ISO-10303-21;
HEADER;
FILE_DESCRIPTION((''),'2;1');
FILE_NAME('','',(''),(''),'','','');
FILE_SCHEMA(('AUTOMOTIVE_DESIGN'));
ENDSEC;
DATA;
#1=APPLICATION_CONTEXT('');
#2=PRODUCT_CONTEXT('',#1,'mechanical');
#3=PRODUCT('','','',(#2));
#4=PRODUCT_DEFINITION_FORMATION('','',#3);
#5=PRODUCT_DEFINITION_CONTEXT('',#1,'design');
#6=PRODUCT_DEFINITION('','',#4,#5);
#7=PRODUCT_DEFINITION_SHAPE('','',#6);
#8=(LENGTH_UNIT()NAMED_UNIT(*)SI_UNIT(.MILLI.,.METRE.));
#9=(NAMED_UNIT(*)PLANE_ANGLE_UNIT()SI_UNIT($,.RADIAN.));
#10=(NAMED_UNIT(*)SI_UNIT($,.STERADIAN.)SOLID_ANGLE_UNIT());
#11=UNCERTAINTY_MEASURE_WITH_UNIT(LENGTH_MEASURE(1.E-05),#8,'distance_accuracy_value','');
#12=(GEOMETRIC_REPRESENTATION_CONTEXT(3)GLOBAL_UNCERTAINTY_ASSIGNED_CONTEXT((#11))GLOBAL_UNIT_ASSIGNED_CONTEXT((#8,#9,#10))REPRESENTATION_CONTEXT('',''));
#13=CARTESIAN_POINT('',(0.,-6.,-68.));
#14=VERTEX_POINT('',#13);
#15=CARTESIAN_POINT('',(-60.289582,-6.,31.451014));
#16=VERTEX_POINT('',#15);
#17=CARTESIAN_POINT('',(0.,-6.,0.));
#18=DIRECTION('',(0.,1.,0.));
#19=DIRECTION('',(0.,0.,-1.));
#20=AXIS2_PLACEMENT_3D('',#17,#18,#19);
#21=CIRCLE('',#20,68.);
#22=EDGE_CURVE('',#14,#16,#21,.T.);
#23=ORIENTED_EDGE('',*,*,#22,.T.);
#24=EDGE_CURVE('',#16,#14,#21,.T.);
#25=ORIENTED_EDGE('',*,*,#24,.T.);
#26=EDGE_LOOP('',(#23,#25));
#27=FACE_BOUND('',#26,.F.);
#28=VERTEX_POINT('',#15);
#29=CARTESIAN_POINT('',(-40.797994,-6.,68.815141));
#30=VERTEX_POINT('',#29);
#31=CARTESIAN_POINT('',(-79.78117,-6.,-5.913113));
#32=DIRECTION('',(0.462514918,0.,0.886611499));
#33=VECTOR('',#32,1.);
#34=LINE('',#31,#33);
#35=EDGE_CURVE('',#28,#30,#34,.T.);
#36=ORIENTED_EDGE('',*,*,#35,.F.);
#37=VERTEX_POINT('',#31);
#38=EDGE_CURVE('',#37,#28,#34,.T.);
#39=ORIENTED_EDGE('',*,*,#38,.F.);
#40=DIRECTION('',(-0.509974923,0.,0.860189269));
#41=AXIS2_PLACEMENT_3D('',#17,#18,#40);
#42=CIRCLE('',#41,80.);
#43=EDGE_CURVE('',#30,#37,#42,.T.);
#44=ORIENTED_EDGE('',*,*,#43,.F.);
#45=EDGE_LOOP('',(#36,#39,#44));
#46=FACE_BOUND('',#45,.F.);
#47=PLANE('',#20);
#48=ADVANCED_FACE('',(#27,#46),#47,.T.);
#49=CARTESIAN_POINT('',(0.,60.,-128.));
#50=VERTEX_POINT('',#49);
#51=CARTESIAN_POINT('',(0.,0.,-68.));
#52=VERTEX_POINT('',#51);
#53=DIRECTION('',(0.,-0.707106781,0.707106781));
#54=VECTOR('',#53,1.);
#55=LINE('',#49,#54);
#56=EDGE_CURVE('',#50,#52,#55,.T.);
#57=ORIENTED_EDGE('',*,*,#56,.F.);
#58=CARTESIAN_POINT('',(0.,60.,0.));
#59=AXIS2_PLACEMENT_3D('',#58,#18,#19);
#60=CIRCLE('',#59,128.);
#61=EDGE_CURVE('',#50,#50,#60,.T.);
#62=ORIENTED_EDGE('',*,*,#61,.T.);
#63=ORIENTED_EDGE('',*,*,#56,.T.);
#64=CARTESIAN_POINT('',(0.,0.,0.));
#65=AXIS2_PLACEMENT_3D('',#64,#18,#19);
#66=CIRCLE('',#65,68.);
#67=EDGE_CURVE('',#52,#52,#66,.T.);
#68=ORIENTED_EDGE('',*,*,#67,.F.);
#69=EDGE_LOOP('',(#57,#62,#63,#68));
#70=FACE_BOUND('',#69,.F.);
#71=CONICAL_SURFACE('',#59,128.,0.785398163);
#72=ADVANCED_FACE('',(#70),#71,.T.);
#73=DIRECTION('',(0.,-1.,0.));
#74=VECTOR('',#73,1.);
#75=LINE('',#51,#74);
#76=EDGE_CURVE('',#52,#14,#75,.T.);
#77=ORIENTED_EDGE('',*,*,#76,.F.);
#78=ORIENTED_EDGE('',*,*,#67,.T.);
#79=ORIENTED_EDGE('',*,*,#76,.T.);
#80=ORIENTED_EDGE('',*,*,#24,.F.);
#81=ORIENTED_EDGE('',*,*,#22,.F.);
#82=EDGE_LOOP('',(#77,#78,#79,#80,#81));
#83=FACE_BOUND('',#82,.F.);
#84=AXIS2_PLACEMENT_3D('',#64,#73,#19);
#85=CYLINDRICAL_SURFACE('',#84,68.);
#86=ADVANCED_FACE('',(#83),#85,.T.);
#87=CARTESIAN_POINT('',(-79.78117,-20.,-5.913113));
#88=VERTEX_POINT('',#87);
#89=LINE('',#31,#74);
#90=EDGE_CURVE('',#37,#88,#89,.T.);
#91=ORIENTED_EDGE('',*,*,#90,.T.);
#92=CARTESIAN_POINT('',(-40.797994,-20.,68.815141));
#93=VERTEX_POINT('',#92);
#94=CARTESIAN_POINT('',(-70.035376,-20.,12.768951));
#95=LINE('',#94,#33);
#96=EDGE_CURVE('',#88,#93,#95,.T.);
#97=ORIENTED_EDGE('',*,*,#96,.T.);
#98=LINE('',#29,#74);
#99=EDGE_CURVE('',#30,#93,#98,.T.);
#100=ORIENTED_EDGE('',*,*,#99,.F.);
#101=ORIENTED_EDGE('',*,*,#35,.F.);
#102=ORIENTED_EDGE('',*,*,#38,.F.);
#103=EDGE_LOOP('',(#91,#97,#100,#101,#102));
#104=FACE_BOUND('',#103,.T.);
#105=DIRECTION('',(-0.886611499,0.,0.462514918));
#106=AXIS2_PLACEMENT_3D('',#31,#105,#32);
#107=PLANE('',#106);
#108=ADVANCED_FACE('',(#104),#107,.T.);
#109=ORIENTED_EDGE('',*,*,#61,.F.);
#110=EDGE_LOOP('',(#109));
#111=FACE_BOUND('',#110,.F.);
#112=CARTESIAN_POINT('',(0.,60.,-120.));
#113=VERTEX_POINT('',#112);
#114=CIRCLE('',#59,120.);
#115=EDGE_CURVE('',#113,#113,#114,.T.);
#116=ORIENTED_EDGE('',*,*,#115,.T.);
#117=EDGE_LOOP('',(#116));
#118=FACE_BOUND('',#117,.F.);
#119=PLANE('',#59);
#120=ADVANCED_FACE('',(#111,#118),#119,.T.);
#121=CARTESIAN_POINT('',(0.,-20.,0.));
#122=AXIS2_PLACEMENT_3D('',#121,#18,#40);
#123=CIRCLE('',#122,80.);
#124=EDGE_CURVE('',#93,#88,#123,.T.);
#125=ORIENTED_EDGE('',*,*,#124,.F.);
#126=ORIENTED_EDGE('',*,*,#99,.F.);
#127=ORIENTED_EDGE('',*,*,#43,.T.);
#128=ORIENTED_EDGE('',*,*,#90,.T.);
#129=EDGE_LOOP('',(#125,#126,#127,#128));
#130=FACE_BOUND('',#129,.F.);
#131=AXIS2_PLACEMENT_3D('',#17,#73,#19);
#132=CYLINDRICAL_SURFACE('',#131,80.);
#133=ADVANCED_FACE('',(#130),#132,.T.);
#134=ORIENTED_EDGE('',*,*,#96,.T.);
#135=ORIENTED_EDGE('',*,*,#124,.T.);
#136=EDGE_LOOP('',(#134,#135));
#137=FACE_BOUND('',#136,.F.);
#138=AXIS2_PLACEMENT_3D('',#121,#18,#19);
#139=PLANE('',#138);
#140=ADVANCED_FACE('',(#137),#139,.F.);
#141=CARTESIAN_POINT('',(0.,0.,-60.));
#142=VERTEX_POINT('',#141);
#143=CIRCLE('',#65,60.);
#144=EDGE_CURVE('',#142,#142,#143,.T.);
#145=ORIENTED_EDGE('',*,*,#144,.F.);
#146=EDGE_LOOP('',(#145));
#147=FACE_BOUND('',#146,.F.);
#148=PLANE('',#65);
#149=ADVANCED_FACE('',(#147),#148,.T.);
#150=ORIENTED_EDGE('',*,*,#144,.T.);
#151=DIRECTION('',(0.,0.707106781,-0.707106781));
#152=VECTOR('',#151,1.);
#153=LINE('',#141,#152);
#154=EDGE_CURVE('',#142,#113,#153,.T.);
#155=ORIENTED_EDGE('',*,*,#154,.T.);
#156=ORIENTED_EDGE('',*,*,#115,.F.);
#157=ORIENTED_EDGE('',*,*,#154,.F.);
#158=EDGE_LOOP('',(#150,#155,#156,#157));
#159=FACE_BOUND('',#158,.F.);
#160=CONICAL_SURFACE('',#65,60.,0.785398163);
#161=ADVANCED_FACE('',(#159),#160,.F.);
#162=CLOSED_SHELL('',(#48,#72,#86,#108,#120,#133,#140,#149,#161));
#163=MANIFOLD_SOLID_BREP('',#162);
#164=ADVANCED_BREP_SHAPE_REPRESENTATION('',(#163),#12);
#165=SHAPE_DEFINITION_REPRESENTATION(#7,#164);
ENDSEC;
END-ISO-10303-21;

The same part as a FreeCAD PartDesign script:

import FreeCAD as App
import Part
import Sketcher
Q = App.Units.Quantity

doc = App.newDocument("Part")
body = doc.addObject("PartDesign::Body", "Body")

sketch1 = body.newObject("Sketcher::SketchObject", "Sketch")
sketch1.AttachmentSupport = (doc.getObject("XY_Plane"), [""])
sketch1.MapMode = "FlatFace"
sketch1.addGeometry([
    Part.LineSegment(App.Vector(0, 0, 0), App.Vector(-60, 0, 0)),
    Part.LineSegment(App.Vector(-60, 0, 0), App.Vector(-120, 60, 0)),
    Part.LineSegment(App.Vector(-120, 60, 0), App.Vector(-128, 60, 0)),
    Part.LineSegment(App.Vector(-128, 60, 0), App.Vector(-68, 0, 0)),
    Part.LineSegment(App.Vector(-68, 0, 0), App.Vector(-68, -6, 0)),
    Part.LineSegment(App.Vector(-68, -6, 0), App.Vector(-80, -6, 0)),
    Part.LineSegment(App.Vector(-80, -6, 0), App.Vector(-80, -20, 0)),
    Part.LineSegment(App.Vector(-80, -20, 0), App.Vector(0, -20, 0)),
    Part.LineSegment(App.Vector(0, -20, 0), App.Vector(0, 0, 0)),
], False)
sketch1.addConstraint([
    Sketcher.Constraint("Coincident", 0, 2, 1, 1),
    Sketcher.Constraint("Coincident", 1, 2, 2, 1),
    Sketcher.Constraint("Coincident", 2, 2, 3, 1),
    Sketcher.Constraint("Coincident", 3, 2, 4, 1),
    Sketcher.Constraint("Coincident", 4, 2, 5, 1),
    Sketcher.Constraint("Coincident", 5, 2, 6, 1),
    Sketcher.Constraint("Coincident", 6, 2, 7, 1),
    Sketcher.Constraint("Coincident", 7, 2, 8, 1),
    Sketcher.Constraint("Coincident", 8, 2, 0, 1),
    Sketcher.Constraint("Horizontal", 0),
    Sketcher.Constraint("Horizontal", 2),
    Sketcher.Constraint("Vertical", 4),
    Sketcher.Constraint("Horizontal", 5),
    Sketcher.Constraint("Vertical", 6),
    Sketcher.Constraint("Horizontal", 7),
    Sketcher.Constraint("Vertical", 8),
    Sketcher.Constraint("Coincident", 8, 2, -1, 1),
    Sketcher.Constraint("PointOnObject", 3, 2, -1),
    Sketcher.Constraint("Parallel", 1, 3),
    Sketcher.Constraint("DistanceX", 0, 2, 0, 1, Q("60 mm")),
    Sketcher.Constraint("DistanceX", 2, 2, 2, 1, Q("8 mm")),
    Sketcher.Constraint("DistanceX", 5, 2, 5, 1, Q("12 mm")),
    Sketcher.Constraint("DistanceY", 4, 2, 4, 1, Q("6 mm")),
    Sketcher.Constraint("DistanceY", 6, 2, 6, 1, Q("14 mm")),
    Sketcher.Constraint("Angle", 1, Q("135 deg")),
    Sketcher.Constraint("DistanceX", 1, 2, -1, 1, Q("120 mm")),
])
revolution = body.newObject("PartDesign::Revolution", "Revolution")
revolution.Profile = sketch1
revolution.ReferenceAxis = (sketch1, ["V_Axis"])
revolution.Angle = 360

sketch2 = body.newObject("Sketcher::SketchObject", "Sketch001")
sketch2.AttachmentSupport = (doc.getObject("XZ_Plane"), [""])
sketch2.MapMode = "FlatFace"
sketch2.AttachmentOffset = App.Placement(App.Vector(0, 0, 6), App.Rotation())
sketch2.addGeometry([
    Part.LineSegment(App.Vector(-41, 69, 0), App.Vector(-80, -6, 0)),
    Part.LineSegment(App.Vector(-80, -6, 0), App.Vector(-137, 24, 0)),
    Part.LineSegment(App.Vector(-137, 24, 0), App.Vector(-98, 99, 0)),
    Part.LineSegment(App.Vector(-98, 99, 0), App.Vector(-41, 69, 0)),
], False)
sketch2.addConstraint([
    Sketcher.Constraint("Coincident", 0, 2, 1, 1),
    Sketcher.Constraint("Coincident", 1, 2, 2, 1),
    Sketcher.Constraint("Coincident", 2, 2, 3, 1),
    Sketcher.Constraint("Coincident", 3, 2, 0, 1),
    Sketcher.Constraint("Perpendicular", 0, 1),
    Sketcher.Constraint("Perpendicular", 1, 2),
    Sketcher.Constraint("Perpendicular", 2, 3),
    Sketcher.Constraint("DistanceY", 0, 2, 2, 2, Q("104.7321 mm")),
    Sketcher.Constraint("Distance", 0, Q("84.28523 mm")),
    Sketcher.Constraint("DistanceX", 0, 2, -1, 1, Q("79.78117 mm")),
    Sketcher.Constraint("DistanceX", 1, 2, -1, 1, Q("137.296622 mm")),
    Sketcher.Constraint("DistanceY", -1, 1, 3, 2, Q("68.815141 mm")),
])
pocket1 = body.newObject("PartDesign::Pocket", "Pocket")
pocket1.Profile = sketch2
pocket1.Type = "ThroughAll"
pocket1.Reversed = True

doc.recompute()
